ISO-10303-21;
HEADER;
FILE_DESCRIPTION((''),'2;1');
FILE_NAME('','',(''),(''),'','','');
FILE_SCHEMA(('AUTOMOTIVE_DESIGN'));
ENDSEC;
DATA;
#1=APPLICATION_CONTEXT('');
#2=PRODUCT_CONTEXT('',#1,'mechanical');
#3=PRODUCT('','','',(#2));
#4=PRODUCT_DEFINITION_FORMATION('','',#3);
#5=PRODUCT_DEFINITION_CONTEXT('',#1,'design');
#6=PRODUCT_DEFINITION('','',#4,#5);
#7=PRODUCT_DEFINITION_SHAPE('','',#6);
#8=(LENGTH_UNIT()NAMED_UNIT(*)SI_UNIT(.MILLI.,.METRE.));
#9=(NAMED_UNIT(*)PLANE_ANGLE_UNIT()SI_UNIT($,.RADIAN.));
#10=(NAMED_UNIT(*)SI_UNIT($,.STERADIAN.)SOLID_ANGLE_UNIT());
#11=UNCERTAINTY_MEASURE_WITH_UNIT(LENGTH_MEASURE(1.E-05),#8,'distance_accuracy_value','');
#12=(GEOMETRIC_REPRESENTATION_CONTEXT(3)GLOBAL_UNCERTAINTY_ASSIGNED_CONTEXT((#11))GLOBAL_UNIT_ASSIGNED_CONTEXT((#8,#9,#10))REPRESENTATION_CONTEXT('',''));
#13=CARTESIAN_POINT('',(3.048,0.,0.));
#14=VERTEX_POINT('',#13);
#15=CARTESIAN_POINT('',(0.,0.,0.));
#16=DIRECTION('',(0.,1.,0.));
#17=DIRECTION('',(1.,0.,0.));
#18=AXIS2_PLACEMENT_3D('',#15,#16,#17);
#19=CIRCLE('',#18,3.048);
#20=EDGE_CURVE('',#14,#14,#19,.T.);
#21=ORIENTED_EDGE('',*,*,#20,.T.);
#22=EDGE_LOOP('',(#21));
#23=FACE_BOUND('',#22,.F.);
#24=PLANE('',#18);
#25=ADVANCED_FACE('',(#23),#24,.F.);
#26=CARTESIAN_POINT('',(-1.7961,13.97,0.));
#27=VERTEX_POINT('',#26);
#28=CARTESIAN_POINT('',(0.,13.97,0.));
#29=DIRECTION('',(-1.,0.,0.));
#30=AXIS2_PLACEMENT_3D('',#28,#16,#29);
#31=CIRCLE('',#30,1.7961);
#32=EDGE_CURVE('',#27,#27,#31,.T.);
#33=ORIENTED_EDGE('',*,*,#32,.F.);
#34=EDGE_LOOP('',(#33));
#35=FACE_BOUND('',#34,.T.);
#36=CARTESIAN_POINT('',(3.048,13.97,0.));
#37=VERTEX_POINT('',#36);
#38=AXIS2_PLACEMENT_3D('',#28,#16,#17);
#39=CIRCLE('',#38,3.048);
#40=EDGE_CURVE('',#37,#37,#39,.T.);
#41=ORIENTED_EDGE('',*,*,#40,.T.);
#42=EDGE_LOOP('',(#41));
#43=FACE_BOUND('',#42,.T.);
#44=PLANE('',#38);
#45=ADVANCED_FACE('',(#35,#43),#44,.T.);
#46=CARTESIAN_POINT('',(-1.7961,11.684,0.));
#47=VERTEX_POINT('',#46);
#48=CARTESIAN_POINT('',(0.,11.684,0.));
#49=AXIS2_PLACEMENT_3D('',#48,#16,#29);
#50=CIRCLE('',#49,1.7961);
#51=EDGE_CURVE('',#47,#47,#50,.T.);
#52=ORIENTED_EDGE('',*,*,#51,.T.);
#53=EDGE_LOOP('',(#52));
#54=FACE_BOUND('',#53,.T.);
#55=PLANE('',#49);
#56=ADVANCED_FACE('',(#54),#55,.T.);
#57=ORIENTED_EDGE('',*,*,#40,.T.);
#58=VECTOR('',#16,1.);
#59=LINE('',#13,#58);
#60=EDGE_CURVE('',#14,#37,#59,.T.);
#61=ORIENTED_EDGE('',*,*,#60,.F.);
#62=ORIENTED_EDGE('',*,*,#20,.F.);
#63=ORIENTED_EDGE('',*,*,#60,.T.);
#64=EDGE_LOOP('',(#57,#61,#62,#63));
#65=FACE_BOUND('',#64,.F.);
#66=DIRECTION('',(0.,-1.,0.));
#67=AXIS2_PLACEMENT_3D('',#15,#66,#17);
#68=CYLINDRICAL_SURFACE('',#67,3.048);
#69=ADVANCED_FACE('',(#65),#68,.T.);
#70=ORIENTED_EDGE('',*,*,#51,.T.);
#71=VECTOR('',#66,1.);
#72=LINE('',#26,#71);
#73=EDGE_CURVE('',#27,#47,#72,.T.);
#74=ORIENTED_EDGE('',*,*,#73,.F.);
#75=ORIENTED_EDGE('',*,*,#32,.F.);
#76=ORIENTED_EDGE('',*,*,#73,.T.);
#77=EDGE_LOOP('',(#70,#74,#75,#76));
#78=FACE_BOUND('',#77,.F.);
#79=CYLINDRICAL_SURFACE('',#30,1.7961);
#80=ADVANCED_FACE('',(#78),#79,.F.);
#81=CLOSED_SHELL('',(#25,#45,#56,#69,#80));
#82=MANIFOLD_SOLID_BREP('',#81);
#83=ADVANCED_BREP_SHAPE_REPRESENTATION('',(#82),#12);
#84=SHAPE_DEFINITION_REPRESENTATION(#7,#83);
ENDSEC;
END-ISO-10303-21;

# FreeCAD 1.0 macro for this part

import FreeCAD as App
import Part
import Sketcher
from FreeCAD import Vector
Q = App.Units.Quantity

doc = App.newDocument("Part")
body = doc.addObject("PartDesign::Body", "Body")

sketch1 = body.newObject("Sketcher::SketchObject", "Sketch")
sketch1.AttachmentSupport = (doc.getObject("XZ_Plane"), [""])
sketch1.MapMode = "FlatFace"
sketch1.addGeometry(Part.Circle(Vector(0, 0, 0), Vector(0, 0, 1), 3), False)
sketch1.addConstraint([
    Sketcher.Constraint("Coincident", 0, 3, -1, 1),
    Sketcher.Constraint("Diameter", 0, Q("0.24 in")),
])
pad1 = body.newObject("PartDesign::Pad", "Pad")
pad1.Profile = sketch1
pad1.Length = Q("0.55 in")
pad1.Reversed = True

sketch2 = body.newObject("Sketcher::SketchObject", "Sketch001")
sketch2.AttachmentSupport = (doc.getObject("XZ_Plane"), [""])
sketch2.MapMode = "FlatFace"
sketch2.AttachmentOffset = App.Placement(Vector(0, 0, -0.55 * 25.4), App.Rotation())
sketch2.addGeometry(Part.Circle(Vector(0, 0, 0), Vector(0, 0, 1), 1.8), False)
sketch2.addConstraint([
    Sketcher.Constraint("Coincident", 0, 3, -1, 1),
    Sketcher.Constraint("Diameter", 0, Q("3.5922 mm")),
])
pocket1 = body.newObject("PartDesign::Pocket", "Pocket")
pocket1.Profile = sketch2
pocket1.Length = Q("0.09 in")
pocket1.Reversed = True

doc.recompute()
